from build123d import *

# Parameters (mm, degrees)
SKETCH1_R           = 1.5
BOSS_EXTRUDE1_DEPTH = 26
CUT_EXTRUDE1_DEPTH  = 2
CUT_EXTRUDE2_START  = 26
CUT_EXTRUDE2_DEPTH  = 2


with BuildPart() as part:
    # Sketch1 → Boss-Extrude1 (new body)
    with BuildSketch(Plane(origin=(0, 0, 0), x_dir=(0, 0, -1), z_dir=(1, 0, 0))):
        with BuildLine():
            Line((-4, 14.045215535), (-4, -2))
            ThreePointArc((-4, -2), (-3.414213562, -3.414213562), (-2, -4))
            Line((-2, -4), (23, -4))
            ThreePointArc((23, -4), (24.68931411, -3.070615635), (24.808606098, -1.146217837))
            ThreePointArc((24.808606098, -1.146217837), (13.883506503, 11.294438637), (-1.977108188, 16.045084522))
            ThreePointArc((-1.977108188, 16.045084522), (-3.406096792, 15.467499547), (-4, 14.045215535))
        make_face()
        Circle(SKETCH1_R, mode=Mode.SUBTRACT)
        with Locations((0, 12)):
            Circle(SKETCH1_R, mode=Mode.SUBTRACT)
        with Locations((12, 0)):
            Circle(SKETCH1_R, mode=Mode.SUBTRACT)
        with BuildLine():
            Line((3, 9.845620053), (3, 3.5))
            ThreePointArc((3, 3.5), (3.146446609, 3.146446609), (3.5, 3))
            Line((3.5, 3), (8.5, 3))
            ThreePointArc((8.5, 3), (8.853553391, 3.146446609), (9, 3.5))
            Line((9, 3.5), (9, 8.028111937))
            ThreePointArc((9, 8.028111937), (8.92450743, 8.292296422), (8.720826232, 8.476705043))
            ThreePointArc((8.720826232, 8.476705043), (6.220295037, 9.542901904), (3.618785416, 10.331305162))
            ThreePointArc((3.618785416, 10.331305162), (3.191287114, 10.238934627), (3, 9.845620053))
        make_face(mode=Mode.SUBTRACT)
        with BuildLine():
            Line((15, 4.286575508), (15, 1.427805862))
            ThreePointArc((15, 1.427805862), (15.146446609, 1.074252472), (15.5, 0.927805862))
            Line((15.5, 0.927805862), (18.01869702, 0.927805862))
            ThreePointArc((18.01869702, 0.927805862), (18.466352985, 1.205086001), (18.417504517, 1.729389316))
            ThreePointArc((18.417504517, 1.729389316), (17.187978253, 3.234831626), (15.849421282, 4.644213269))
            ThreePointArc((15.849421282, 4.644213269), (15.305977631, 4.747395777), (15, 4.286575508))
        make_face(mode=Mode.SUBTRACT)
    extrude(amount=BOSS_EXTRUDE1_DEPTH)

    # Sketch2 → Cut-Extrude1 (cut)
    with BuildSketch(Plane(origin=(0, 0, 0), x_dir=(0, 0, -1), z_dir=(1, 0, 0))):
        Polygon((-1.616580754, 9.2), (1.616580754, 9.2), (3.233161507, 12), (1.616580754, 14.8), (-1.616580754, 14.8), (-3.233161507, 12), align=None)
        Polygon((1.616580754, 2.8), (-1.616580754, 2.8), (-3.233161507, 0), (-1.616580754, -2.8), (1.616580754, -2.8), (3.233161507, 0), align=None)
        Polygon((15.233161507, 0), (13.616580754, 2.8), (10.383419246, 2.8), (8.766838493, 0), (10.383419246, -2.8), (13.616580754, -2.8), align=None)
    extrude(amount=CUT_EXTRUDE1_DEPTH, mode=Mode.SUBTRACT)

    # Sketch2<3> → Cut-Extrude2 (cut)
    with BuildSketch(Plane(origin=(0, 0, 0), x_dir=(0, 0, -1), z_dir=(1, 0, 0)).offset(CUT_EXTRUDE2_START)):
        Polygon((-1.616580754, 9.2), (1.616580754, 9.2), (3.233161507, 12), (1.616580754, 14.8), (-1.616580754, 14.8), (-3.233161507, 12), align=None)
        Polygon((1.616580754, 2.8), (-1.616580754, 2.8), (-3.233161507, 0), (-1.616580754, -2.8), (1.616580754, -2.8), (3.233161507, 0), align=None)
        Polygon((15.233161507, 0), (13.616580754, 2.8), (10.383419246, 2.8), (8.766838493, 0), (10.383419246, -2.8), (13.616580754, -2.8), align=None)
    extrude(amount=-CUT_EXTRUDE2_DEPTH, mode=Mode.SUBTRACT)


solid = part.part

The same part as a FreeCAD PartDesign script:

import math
import FreeCAD as App
import Part
import Sketcher
Q = App.Units.Quantity

doc = App.newDocument("Part")
body = doc.addObject("PartDesign::Body", "Body")

# Sketch on YZ plane
sketch1 = body.newObject("Sketcher::SketchObject", "Sketch")
sketch1.AttachmentSupport = (doc.getObject("YZ_Plane"), [""])
sketch1.MapMode = "FlatFace"
sketch1.addGeometry([
    Part.LineSegment(App.Vector(14.045216, 4, 0), App.Vector(-2, 4, 0)),  # 0
    Part.ArcOfCircle(Part.Circle(App.Vector(-2, 2, 0), App.Vector(0, 0, 1), 2), math.radians(90), math.radians(180)),  # 1
    Part.LineSegment(App.Vector(-4, 2, 0), App.Vector(-4, -23, 0)),  # 2
    Part.ArcOfCircle(Part.Circle(App.Vector(-2, -23, 0), App.Vector(0, 0, 1), 2), math.radians(180), math.radians(295.270422)),  # 3
    Part.ArcOfCircle(Part.Circle(App.Vector(-13.95295, 2.320485, 0), App.Vector(0, 0, 1), 30), math.radians(-64.729578), math.radians(-0.655816)),  # 4
    Part.ArcOfCircle(Part.Circle(App.Vector(14.045216, 2, 0), App.Vector(0, 0, 1), 2), math.radians(-0.655816), math.radians(90)),  # 5
    Part.Circle(App.Vector(0, 0, 0), App.Vector(0, 0, 1), 1.5),  # 6
    Part.Circle(App.Vector(0, -12, 0), App.Vector(0, 0, 1), 1.5),  # 7
    Part.LineSegment(App.Vector(1.427806, -15, 0), App.Vector(4.286576, -15, 0)),  # 8
    Part.ArcOfCircle(Part.Circle(App.Vector(4.286576, -15.5, 0), App.Vector(0, 0, 1), 0.5), math.radians(-44.334216), math.radians(90)),  # 9
    Part.ArcOfCircle(Part.Circle(App.Vector(-13.95295, 2.320485, 0), App.Vector(0, 0, 1), 26), math.radians(-52.902951), math.radians(-44.334216)),  # 10
    Part.ArcOfCircle(Part.Circle(App.Vector(1.427806, -18.018697, 0), App.Vector(0, 0, 1), 0.5), math.radians(180), math.radians(307.097049)),  # 11
    Part.LineSegment(App.Vector(0.927806, -18.018697, 0), App.Vector(0.927806, -15.5, 0)),  # 12
    Part.ArcOfCircle(Part.Circle(App.Vector(1.427806, -15.5, 0), App.Vector(0, 0, 1), 0.5), math.radians(90), math.radians(180)),  # 13
    Part.LineSegment(App.Vector(3.5, -3, 0), App.Vector(9.84562, -3, 0)),  # 14
    Part.ArcOfCircle(Part.Circle(App.Vector(9.84562, -3.5, 0), App.Vector(0, 0, 1), 0.5), math.radians(-13.743213), math.radians(90)),  # 15
    Part.ArcOfCircle(Part.Circle(App.Vector(-13.95295, 2.320485, 0), App.Vector(0, 0, 1), 25), math.radians(-26.209362), math.radians(-13.743213)),  # 16
    Part.ArcOfCircle(Part.Circle(App.Vector(8.028112, -8.5, 0), App.Vector(0, 0, 1), 0.5), math.radians(-90), math.radians(-26.209362)),  # 17
    Part.LineSegment(App.Vector(8.028112, -9, 0), App.Vector(3.5, -9, 0)),  # 18
    Part.ArcOfCircle(Part.Circle(App.Vector(3.5, -8.5, 0), App.Vector(0, 0, 1), 0.5), math.radians(180), math.radians(270)),  # 19
    Part.LineSegment(App.Vector(3, -8.5, 0), App.Vector(3, -3.5, 0)),  # 20
    Part.ArcOfCircle(Part.Circle(App.Vector(3.5, -3.5, 0), App.Vector(0, 0, 1), 0.5), math.radians(90), math.radians(180)),  # 21
    Part.Circle(App.Vector(12, 0, 0), App.Vector(0, 0, 1), 1.5),  # 22
], False)
sketch1.addConstraint([
    Sketcher.Constraint("Tangent", 0, 2, 1, 1),
    Sketcher.Constraint("Tangent", 1, 2, 2, 1),
    Sketcher.Constraint("Tangent", 2, 2, 3, 1),
    Sketcher.Constraint("Tangent", 3, 2, 4, 1),
    Sketcher.Constraint("Tangent", 4, 2, 5, 1),
    Sketcher.Constraint("Tangent", 5, 2, 0, 1),
    Sketcher.Constraint("Tangent", 8, 2, 9, 2),
    Sketcher.Constraint("Tangent", 9, 1, 10, 2),
    Sketcher.Constraint("Tangent", 10, 1, 11, 2),
    Sketcher.Constraint("Tangent", 11, 1, 12, 1),
    Sketcher.Constraint("Tangent", 12, 2, 13, 2),
    Sketcher.Constraint("Tangent", 13, 1, 8, 1),
    Sketcher.Constraint("Tangent", 14, 2, 15, 2),
    Sketcher.Constraint("Tangent", 15, 1, 16, 2),
    Sketcher.Constraint("Tangent", 16, 1, 17, 2),
    Sketcher.Constraint("Tangent", 17, 1, 18, 1),
    Sketcher.Constraint("Tangent", 18, 2, 19, 2),
    Sketcher.Constraint("Tangent", 19, 1, 20, 1),
    Sketcher.Constraint("Tangent", 20, 2, 21, 2),
    Sketcher.Constraint("Tangent", 21, 1, 14, 1),
    Sketcher.Constraint("Horizontal", 0),
    Sketcher.Constraint("Vertical", 2),
    Sketcher.Constraint("Horizontal", 8),
    Sketcher.Constraint("Vertical", 12),
    Sketcher.Constraint("Horizontal", 14),
    Sketcher.Constraint("Horizontal", 18),
    Sketcher.Constraint("Vertical", 20),
    Sketcher.Constraint("Coincident", 6, 3, -1, 1),
    Sketcher.Constraint("Coincident", 10, 3, 4, 3),
    Sketcher.Constraint("Coincident", 16, 3, 4, 3),
    Sketcher.Constraint("Equal", 1, 3),
    Sketcher.Constraint("Equal", 3, 5),
    Sketcher.Constraint("Equal", 6, 7),
    Sketcher.Constraint("Equal", 9, 11),
    Sketcher.Constraint("Equal", 11, 13),
    Sketcher.Constraint("Equal", 13, 15),
    Sketcher.Constraint("Equal", 15, 17),
    Sketcher.Constraint("Equal", 17, 19),
    Sketcher.Constraint("Equal", 19, 21),
    Sketcher.Constraint("Equal", 7, 22),
    Sketcher.Constraint("PointOnObject", 7, 3, -2),
    Sketcher.Constraint("PointOnObject", 22, 3, -1),
    Sketcher.Constraint("Diameter", 6, Q("3 mm")),
    Sketcher.Constraint("Radius", 1, Q("2 mm")),
    Sketcher.Constraint("Radius", 4, Q("30 mm")),
    Sketcher.Constraint("Radius", 10, Q("26 mm")),
    Sketcher.Constraint("Radius", 16, Q("25 mm")),
    Sketcher.Constraint("Radius", 9, Q("0.5 mm")),
    Sketcher.Constraint("DistanceY", 2, 2, 2, 1, Q("25 mm")),
    Sketcher.Constraint("DistanceY", 20, 1, 20, 2, Q("5 mm")),
    Sketcher.Constraint("DistanceX", 1, 3, -1, 1, Q("2 mm")),
    Sketcher.Constraint("DistanceY", -1, 1, 1, 3, Q("2 mm")),
    Sketcher.Constraint("DistanceY", 7, 3, -1, 1, Q("12 mm")),
    Sketcher.Constraint("DistanceX", -1, 1, 22, 3, Q("12 mm")),
    Sketcher.Constraint("DistanceY", 8, 2, -1, 1, Q("15 mm")),
    Sketcher.Constraint("DistanceY", 14, 2, -1, 1, Q("3 mm")),
    Sketcher.Constraint("DistanceX", -1, 1, 19, 1, Q("3 mm")),
    Sketcher.Constraint("DistanceX", 8, 1, 8, 2, Q("2.85877 mm")),
    Sketcher.Constraint("DistanceX", 14, 1, 14, 2, Q("6.34562 mm")),
])
pad1 = body.newObject("PartDesign::Pad", "Pad")
pad1.Profile = sketch1
pad1.Length = 26

# Sketch on YZ plane
sketch2 = body.newObject("Sketcher::SketchObject", "Sketch001")
sketch2.AttachmentSupport = (doc.getObject("YZ_Plane"), [""])
sketch2.MapMode = "FlatFace"
sketch2.addGeometry([
    Part.LineSegment(App.Vector(9.2, 1.616581, 0), App.Vector(9.2, -1.616581, 0)),  # 0
    Part.LineSegment(App.Vector(9.2, -1.616581, 0), App.Vector(12, -3.233162, 0)),  # 1
    Part.LineSegment(App.Vector(12, -3.233162, 0), App.Vector(14.8, -1.616581, 0)),  # 2
    Part.LineSegment(App.Vector(14.8, -1.616581, 0), App.Vector(14.8, 1.616581, 0)),  # 3
    Part.LineSegment(App.Vector(14.8, 1.616581, 0), App.Vector(12, 3.233162, 0)),  # 4
    Part.LineSegment(App.Vector(12, 3.233162, 0), App.Vector(9.2, 1.616581, 0)),  # 5
    Part.LineSegment(App.Vector(2.8, -1.616581, 0), App.Vector(2.8, 1.616581, 0)),  # 6
    Part.LineSegment(App.Vector(2.8, 1.616581, 0), App.Vector(0, 3.233162, 0)),  # 7
    Part.LineSegment(App.Vector(0, 3.233162, 0), App.Vector(-2.8, 1.616581, 0)),  # 8
    Part.LineSegment(App.Vector(-2.8, 1.616581, 0), App.Vector(-2.8, -1.616581, 0)),  # 9
    Part.LineSegment(App.Vector(-2.8, -1.616581, 0), App.Vector(0, -3.233162, 0)),  # 10
    Part.LineSegment(App.Vector(0, -3.233162, 0), App.Vector(2.8, -1.616581, 0)),  # 11
    Part.LineSegment(App.Vector(0, -15.233162, 0), App.Vector(2.8, -13.616581, 0)),  # 12
    Part.LineSegment(App.Vector(2.8, -13.616581, 0), App.Vector(2.8, -10.383419, 0)),  # 13
    Part.LineSegment(App.Vector(2.8, -10.383419, 0), App.Vector(0, -8.766838, 0)),  # 14
    Part.LineSegment(App.Vector(0, -8.766838, 0), App.Vector(-2.8, -10.383419, 0)),  # 15
    Part.LineSegment(App.Vector(-2.8, -10.383419, 0), App.Vector(-2.8, -13.616581, 0)),  # 16
    Part.LineSegment(App.Vector(-2.8, -13.616581, 0), App.Vector(0, -15.233162, 0)),  # 17
], False)
sketch2.addConstraint([
    Sketcher.Constraint("Coincident", 0, 2, 1, 1),
    Sketcher.Constraint("Coincident", 1, 2, 2, 1),
    Sketcher.Constraint("Coincident", 2, 2, 3, 1),
    Sketcher.Constraint("Coincident", 3, 2, 4, 1),
    Sketcher.Constraint("Coincident", 4, 2, 5, 1),
    Sketcher.Constraint("Coincident", 5, 2, 0, 1),
    Sketcher.Constraint("Coincident", 6, 2, 7, 1),
    Sketcher.Constraint("Coincident", 7, 2, 8, 1),
    Sketcher.Constraint("Coincident", 8, 2, 9, 1),
    Sketcher.Constraint("Coincident", 9, 2, 10, 1),
    Sketcher.Constraint("Coincident", 10, 2, 11, 1),
    Sketcher.Constraint("Coincident", 11, 2, 6, 1),
    Sketcher.Constraint("Coincident", 12, 2, 13, 1),
    Sketcher.Constraint("Coincident", 13, 2, 14, 1),
    Sketcher.Constraint("Coincident", 14, 2, 15, 1),
    Sketcher.Constraint("Coincident", 15, 2, 16, 1),
    Sketcher.Constraint("Coincident", 16, 2, 17, 1),
    Sketcher.Constraint("Coincident", 17, 2, 12, 1),
    Sketcher.Constraint("Vertical", 0),
    Sketcher.Constraint("Vertical", 3),
    Sketcher.Constraint("Vertical", 6),
    Sketcher.Constraint("Vertical", 9),
    Sketcher.Constraint("Vertical", 13),
    Sketcher.Constraint("Vertical", 16),
    Sketcher.Constraint("Symmetric", 6, 2, 9, 2, -1, 1),
    Sketcher.Constraint("Symmetric", 7, 2, 10, 2, -1, 1),
    Sketcher.Constraint("Symmetric", 13, 2, 15, 2, -2),
    Sketcher.Constraint("Symmetric", 1, 2, 4, 2, -1),
    Sketcher.Constraint("PointOnObject", 7, 2, -2),
    Sketcher.Constraint("PointOnObject", 14, 2, -2),
    Sketcher.Constraint("PointOnObject", 17, 2, -2),
    Sketcher.Constraint("Parallel", 1, 4),
    Sketcher.Constraint("Parallel", 2, 5),
    Sketcher.Constraint("Parallel", 4, 7),
    Sketcher.Constraint("Parallel", 5, 8),
    Sketcher.Constraint("Parallel", 8, 11),
    Sketcher.Constraint("Parallel", 11, 12),
    Sketcher.Constraint("Parallel", 10, 14),
    Sketcher.Constraint("Parallel", 12, 15),
    Sketcher.Constraint("Parallel", 14, 17),
    Sketcher.Constraint("Horizontal", 0, 2, 2, 2),
    Sketcher.Constraint("Horizontal", 5, 2, 6, 2),
    Sketcher.Constraint("Horizontal", 4, 2, 7, 2),
    Sketcher.Constraint("Vertical", 11, 2, 12, 2),
    Sketcher.Constraint("Equal", 9, 13),
    Sketcher.Constraint("Angle", 1, Q("-30 deg")),
    Sketcher.Constraint("DistanceX", -1, 1, 1, 2, Q("12 mm")),
    Sketcher.Constraint("DistanceY", 12, 2, 11, 2, Q("12 mm")),
    Sketcher.Constraint("DistanceX", -1, 1, 0, 2, Q("9.2 mm")),
    Sketcher.Constraint("DistanceY", 0, 2, 0, 1, Q("3.233162 mm")),
])
pocket1 = body.newObject("PartDesign::Pocket", "Pocket")
pocket1.Profile = sketch2
pocket1.Length = 2
pocket1.Reversed = True

# Sketch on YZ plane
sketch3 = body.newObject("Sketcher::SketchObject", "Sketch002")
sketch3.AttachmentSupport = (doc.getObject("YZ_Plane"), [""])
sketch3.MapMode = "FlatFace"
sketch3.AttachmentOffset = App.Placement(App.Vector(0, 0, 26), App.Rotation())
sketch3.addGeometry([
    Part.LineSegment(App.Vector(9.2, 1.616581, 0), App.Vector(9.2, -1.616581, 0)),  # 0
    Part.LineSegment(App.Vector(9.2, -1.616581, 0), App.Vector(12, -3.233162, 0)),  # 1
    Part.LineSegment(App.Vector(12, -3.233162, 0), App.Vector(14.8, -1.616581, 0)),  # 2
    Part.LineSegment(App.Vector(14.8, -1.616581, 0), App.Vector(14.8, 1.616581, 0)),  # 3
    Part.LineSegment(App.Vector(14.8, 1.616581, 0), App.Vector(12, 3.233162, 0)),  # 4
    Part.LineSegment(App.Vector(12, 3.233162, 0), App.Vector(9.2, 1.616581, 0)),  # 5
    Part.LineSegment(App.Vector(2.8, -1.616581, 0), App.Vector(2.8, 1.616581, 0)),  # 6
    Part.LineSegment(App.Vector(2.8, 1.616581, 0), App.Vector(0, 3.233162, 0)),  # 7
    Part.LineSegment(App.Vector(0, 3.233162, 0), App.Vector(-2.8, 1.616581, 0)),  # 8
    Part.LineSegment(App.Vector(-2.8, 1.616581, 0), App.Vector(-2.8, -1.616581, 0)),  # 9
    Part.LineSegment(App.Vector(-2.8, -1.616581, 0), App.Vector(0, -3.233162, 0)),  # 10
    Part.LineSegment(App.Vector(0, -3.233162, 0), App.Vector(2.8, -1.616581, 0)),  # 11
    Part.LineSegment(App.Vector(0, -15.233162, 0), App.Vector(2.8, -13.616581, 0)),  # 12
    Part.LineSegment(App.Vector(2.8, -13.616581, 0), App.Vector(2.8, -10.383419, 0)),  # 13
    Part.LineSegment(App.Vector(2.8, -10.383419, 0), App.Vector(0, -8.766838, 0)),  # 14
    Part.LineSegment(App.Vector(0, -8.766838, 0), App.Vector(-2.8, -10.383419, 0)),  # 15
    Part.LineSegment(App.Vector(-2.8, -10.383419, 0), App.Vector(-2.8, -13.616581, 0)),  # 16
    Part.LineSegment(App.Vector(-2.8, -13.616581, 0), App.Vector(0, -15.233162, 0)),  # 17
], False)
sketch3.addConstraint([
    Sketcher.Constraint("Coincident", 0, 2, 1, 1),
    Sketcher.Constraint("Coincident", 1, 2, 2, 1),
    Sketcher.Constraint("Coincident", 2, 2, 3, 1),
    Sketcher.Constraint("Coincident", 3, 2, 4, 1),
    Sketcher.Constraint("Coincident", 4, 2, 5, 1),
    Sketcher.Constraint("Coincident", 5, 2, 0, 1),
    Sketcher.Constraint("Coincident", 6, 2, 7, 1),
    Sketcher.Constraint("Coincident", 7, 2, 8, 1),
    Sketcher.Constraint("Coincident", 8, 2, 9, 1),
    Sketcher.Constraint("Coincident", 9, 2, 10, 1),
    Sketcher.Constraint("Coincident", 10, 2, 11, 1),
    Sketcher.Constraint("Coincident", 11, 2, 6, 1),
    Sketcher.Constraint("Coincident", 12, 2, 13, 1),
    Sketcher.Constraint("Coincident", 13, 2, 14, 1),
    Sketcher.Constraint("Coincident", 14, 2, 15, 1),
    Sketcher.Constraint("Coincident", 15, 2, 16, 1),
    Sketcher.Constraint("Coincident", 16, 2, 17, 1),
    Sketcher.Constraint("Coincident", 17, 2, 12, 1),
    Sketcher.Constraint("Vertical", 0),
    Sketcher.Constraint("Vertical", 3),
    Sketcher.Constraint("Vertical", 6),
    Sketcher.Constraint("Vertical", 9),
    Sketcher.Constraint("Vertical", 13),
    Sketcher.Constraint("Vertical", 16),
    Sketcher.Constraint("Symmetric", 6, 2, 9, 2, -1, 1),
    Sketcher.Constraint("Symmetric", 7, 2, 10, 2, -1, 1),
    Sketcher.Constraint("Symmetric", 13, 2, 15, 2, -2),
    Sketcher.Constraint("Symmetric", 1, 2, 4, 2, -1),
    Sketcher.Constraint("PointOnObject", 7, 2, -2),
    Sketcher.Constraint("PointOnObject", 14, 2, -2),
    Sketcher.Constraint("PointOnObject", 17, 2, -2),
    Sketcher.Constraint("Parallel", 1, 4),
    Sketcher.Constraint("Parallel", 2, 5),
    Sketcher.Constraint("Parallel", 4, 7),
    Sketcher.Constraint("Parallel", 5, 8),
    Sketcher.Constraint("Parallel", 8, 11),
    Sketcher.Constraint("Parallel", 11, 12),
    Sketcher.Constraint("Parallel", 10, 14),
    Sketcher.Constraint("Parallel", 12, 15),
    Sketcher.Constraint("Parallel", 14, 17),
    Sketcher.Constraint("Horizontal", 0, 2, 2, 2),
    Sketcher.Constraint("Horizontal", 5, 2, 6, 2),
    Sketcher.Constraint("Horizontal", 4, 2, 7, 2),
    Sketcher.Constraint("Vertical", 11, 2, 12, 2),
    Sketcher.Constraint("Equal", 9, 13),
    Sketcher.Constraint("Angle", 1, Q("-30 deg")),
    Sketcher.Constraint("DistanceX", -1, 1, 1, 2, Q("12 mm")),
    Sketcher.Constraint("DistanceY", 12, 2, 11, 2, Q("12 mm")),
    Sketcher.Constraint("DistanceX", -1, 1, 0, 2, Q("9.2 mm")),
    Sketcher.Constraint("DistanceY", 0, 2, 0, 1, Q("3.233162 mm")),
])
pocket2 = body.newObject("PartDesign::Pocket", "Pocket001")
pocket2.Profile = sketch3
pocket2.Length = 2

doc.recompute()
